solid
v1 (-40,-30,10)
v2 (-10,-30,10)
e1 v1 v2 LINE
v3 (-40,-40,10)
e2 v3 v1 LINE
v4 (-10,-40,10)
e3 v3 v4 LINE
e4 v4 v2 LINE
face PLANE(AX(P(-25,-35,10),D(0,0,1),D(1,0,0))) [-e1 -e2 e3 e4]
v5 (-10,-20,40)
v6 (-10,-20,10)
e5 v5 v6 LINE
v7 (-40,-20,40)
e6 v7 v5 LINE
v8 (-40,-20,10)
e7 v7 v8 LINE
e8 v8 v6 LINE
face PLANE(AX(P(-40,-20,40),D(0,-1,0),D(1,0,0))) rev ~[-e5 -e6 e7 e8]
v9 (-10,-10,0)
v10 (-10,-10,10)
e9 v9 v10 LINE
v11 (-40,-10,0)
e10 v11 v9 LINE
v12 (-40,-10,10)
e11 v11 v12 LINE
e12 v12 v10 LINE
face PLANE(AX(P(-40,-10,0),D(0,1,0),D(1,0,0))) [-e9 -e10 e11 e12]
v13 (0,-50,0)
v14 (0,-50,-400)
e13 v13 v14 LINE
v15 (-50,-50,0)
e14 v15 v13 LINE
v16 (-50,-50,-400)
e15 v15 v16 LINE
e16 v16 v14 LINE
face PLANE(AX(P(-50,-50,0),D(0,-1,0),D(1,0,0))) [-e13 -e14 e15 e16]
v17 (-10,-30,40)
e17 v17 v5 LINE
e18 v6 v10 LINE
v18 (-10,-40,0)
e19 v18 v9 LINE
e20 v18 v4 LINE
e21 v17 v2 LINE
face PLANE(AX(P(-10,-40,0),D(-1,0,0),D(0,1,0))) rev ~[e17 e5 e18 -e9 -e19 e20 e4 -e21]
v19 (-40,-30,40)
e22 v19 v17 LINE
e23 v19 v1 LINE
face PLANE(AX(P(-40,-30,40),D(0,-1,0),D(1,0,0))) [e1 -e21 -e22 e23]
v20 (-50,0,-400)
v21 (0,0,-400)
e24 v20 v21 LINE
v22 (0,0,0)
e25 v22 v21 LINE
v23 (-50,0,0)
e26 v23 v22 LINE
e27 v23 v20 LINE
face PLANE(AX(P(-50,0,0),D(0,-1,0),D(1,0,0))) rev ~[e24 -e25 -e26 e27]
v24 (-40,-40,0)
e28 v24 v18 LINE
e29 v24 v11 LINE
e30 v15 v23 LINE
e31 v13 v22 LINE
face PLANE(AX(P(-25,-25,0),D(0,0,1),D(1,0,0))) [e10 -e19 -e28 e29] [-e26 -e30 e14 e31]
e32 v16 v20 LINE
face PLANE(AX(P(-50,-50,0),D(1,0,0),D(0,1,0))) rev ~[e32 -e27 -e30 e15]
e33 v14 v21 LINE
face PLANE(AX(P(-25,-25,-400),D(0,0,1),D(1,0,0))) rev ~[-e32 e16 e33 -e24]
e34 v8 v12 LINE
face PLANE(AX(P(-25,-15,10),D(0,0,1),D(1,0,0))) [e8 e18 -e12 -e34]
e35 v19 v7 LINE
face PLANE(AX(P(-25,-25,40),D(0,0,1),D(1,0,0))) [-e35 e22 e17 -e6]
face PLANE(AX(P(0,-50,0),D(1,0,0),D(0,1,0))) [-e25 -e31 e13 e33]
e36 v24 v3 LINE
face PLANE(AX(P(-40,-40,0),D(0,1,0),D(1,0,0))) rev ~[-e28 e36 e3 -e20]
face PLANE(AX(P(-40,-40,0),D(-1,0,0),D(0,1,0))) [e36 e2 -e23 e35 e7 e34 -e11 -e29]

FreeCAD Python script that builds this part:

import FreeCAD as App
import Part
import Sketcher


def add_polygon(sketch, points):
    """Adds a closed chain of lines whose ends are joined by coincident constraints."""
    first, n = sketch.GeometryCount, len(points)
    for a, b in zip(points, points[1:] + points[:1]):
        sketch.addGeometry(Part.LineSegment(App.Vector(*a, 0), App.Vector(*b, 0)), False)
    for i in range(n):
        sketch.addConstraint(Sketcher.Constraint("Coincident", first + i, 2, first + (i + 1) % n, 1))

doc = App.newDocument("Part")
body = doc.addObject("PartDesign::Body", "Body")

sketch1 = body.newObject("Sketcher::SketchObject", "Sketch")
sketch1.AttachmentSupport = (doc.getObject("XY_Plane"), [""])
sketch1.MapMode = "FlatFace"
add_polygon(sketch1, [(-50, 0), (-50, -50), (0, -50), (0, 0)])
sketch1.addConstraint([
    Sketcher.Constraint("Vertical", 0),
    Sketcher.Constraint("Horizontal", 1),
    Sketcher.Constraint("Vertical", 2),
    Sketcher.Constraint("Horizontal", 3),
    Sketcher.Constraint("Coincident", 2, 2, -1, 1),
    Sketcher.Constraint("Equal", 3, 0),
    Sketcher.Constraint("DistanceX", 1, 1, 1, 2, 50.0),
])
pad1 = body.newObject("PartDesign::Pad", "Pad")
pad1.Profile = sketch1
pad1.Length = 400
pad1.Reversed = True

sketch2 = body.newObject("Sketcher::SketchObject", "Sketch001")
sketch2.AttachmentSupport = (doc.getObject("XY_Plane"), [""])
sketch2.MapMode = "FlatFace"
add_polygon(sketch2, [(-40, -10), (-40, -40), (-10, -40), (-10, -10)])
sketch2.addConstraint([
    Sketcher.Constraint("Vertical", 0),
    Sketcher.Constraint("Horizontal", 1),
    Sketcher.Constraint("Vertical", 2),
    Sketcher.Constraint("Horizontal", 3),
    Sketcher.Constraint("Equal", 3, 0),
    Sketcher.Constraint("DistanceX", 1, 1, 1, 2, 30.0),
    Sketcher.Constraint("DistanceX", 0, 2, -1, 1, 40.0),
    Sketcher.Constraint("DistanceY", 0, 2, -1, 1, 40.0),
])
pad2 = body.newObject("PartDesign::Pad", "Pad001")
pad2.Profile = sketch2
pad2.Length = 40

sketch3 = body.newObject("Sketcher::SketchObject", "Sketch002")
sketch3.AttachmentSupport = (doc.getObject("XY_Plane"), [""])
sketch3.MapMode = "FlatFace"
sketch3.AttachmentOffset = App.Placement(App.Vector(0, 0, 40), App.Rotation())
add_polygon(sketch3, [(-40, -30), (-40, -40), (-10, -40), (-10, -30)])
add_polygon(sketch3, [(-40, -10), (-40, -20), (-10, -20), (-10, -10)])
sketch3.addConstraint([
    Sketcher.Constraint("Vertical", 0),
    Sketcher.Constraint("Horizontal", 1),
    Sketcher.Constraint("Vertical", 2),
    Sketcher.Constraint("Horizontal", 3),
    Sketcher.Constraint("Vertical", 4),
    Sketcher.Constraint("Horizontal", 5),
    Sketcher.Constraint("Vertical", 6),
    Sketcher.Constraint("Horizontal", 7),
    Sketcher.Constraint("Vertical", 3, 2, 4, 2),
    Sketcher.Constraint("Vertical", 2, 2, 5, 2),
    Sketcher.Constraint("Equal", 2, 4),
    Sketcher.Constraint("DistanceX", 1, 1, 1, 2, 30.0),
    Sketcher.Constraint("DistanceY", 0, 2, 0, 1, 10.0),
    Sketcher.Constraint("DistanceX", 0, 2, -1, 1, 40.0),
    Sketcher.Constraint("DistanceY", 0, 2, -1, 1, 40.0),
    Sketcher.Constraint("DistanceY", 4, 2, -1, 1, 20.0),
])
pocket1 = body.newObject("PartDesign::Pocket", "Pocket")
pocket1.Profile = sketch3
pocket1.Length = 30

doc.recompute()
